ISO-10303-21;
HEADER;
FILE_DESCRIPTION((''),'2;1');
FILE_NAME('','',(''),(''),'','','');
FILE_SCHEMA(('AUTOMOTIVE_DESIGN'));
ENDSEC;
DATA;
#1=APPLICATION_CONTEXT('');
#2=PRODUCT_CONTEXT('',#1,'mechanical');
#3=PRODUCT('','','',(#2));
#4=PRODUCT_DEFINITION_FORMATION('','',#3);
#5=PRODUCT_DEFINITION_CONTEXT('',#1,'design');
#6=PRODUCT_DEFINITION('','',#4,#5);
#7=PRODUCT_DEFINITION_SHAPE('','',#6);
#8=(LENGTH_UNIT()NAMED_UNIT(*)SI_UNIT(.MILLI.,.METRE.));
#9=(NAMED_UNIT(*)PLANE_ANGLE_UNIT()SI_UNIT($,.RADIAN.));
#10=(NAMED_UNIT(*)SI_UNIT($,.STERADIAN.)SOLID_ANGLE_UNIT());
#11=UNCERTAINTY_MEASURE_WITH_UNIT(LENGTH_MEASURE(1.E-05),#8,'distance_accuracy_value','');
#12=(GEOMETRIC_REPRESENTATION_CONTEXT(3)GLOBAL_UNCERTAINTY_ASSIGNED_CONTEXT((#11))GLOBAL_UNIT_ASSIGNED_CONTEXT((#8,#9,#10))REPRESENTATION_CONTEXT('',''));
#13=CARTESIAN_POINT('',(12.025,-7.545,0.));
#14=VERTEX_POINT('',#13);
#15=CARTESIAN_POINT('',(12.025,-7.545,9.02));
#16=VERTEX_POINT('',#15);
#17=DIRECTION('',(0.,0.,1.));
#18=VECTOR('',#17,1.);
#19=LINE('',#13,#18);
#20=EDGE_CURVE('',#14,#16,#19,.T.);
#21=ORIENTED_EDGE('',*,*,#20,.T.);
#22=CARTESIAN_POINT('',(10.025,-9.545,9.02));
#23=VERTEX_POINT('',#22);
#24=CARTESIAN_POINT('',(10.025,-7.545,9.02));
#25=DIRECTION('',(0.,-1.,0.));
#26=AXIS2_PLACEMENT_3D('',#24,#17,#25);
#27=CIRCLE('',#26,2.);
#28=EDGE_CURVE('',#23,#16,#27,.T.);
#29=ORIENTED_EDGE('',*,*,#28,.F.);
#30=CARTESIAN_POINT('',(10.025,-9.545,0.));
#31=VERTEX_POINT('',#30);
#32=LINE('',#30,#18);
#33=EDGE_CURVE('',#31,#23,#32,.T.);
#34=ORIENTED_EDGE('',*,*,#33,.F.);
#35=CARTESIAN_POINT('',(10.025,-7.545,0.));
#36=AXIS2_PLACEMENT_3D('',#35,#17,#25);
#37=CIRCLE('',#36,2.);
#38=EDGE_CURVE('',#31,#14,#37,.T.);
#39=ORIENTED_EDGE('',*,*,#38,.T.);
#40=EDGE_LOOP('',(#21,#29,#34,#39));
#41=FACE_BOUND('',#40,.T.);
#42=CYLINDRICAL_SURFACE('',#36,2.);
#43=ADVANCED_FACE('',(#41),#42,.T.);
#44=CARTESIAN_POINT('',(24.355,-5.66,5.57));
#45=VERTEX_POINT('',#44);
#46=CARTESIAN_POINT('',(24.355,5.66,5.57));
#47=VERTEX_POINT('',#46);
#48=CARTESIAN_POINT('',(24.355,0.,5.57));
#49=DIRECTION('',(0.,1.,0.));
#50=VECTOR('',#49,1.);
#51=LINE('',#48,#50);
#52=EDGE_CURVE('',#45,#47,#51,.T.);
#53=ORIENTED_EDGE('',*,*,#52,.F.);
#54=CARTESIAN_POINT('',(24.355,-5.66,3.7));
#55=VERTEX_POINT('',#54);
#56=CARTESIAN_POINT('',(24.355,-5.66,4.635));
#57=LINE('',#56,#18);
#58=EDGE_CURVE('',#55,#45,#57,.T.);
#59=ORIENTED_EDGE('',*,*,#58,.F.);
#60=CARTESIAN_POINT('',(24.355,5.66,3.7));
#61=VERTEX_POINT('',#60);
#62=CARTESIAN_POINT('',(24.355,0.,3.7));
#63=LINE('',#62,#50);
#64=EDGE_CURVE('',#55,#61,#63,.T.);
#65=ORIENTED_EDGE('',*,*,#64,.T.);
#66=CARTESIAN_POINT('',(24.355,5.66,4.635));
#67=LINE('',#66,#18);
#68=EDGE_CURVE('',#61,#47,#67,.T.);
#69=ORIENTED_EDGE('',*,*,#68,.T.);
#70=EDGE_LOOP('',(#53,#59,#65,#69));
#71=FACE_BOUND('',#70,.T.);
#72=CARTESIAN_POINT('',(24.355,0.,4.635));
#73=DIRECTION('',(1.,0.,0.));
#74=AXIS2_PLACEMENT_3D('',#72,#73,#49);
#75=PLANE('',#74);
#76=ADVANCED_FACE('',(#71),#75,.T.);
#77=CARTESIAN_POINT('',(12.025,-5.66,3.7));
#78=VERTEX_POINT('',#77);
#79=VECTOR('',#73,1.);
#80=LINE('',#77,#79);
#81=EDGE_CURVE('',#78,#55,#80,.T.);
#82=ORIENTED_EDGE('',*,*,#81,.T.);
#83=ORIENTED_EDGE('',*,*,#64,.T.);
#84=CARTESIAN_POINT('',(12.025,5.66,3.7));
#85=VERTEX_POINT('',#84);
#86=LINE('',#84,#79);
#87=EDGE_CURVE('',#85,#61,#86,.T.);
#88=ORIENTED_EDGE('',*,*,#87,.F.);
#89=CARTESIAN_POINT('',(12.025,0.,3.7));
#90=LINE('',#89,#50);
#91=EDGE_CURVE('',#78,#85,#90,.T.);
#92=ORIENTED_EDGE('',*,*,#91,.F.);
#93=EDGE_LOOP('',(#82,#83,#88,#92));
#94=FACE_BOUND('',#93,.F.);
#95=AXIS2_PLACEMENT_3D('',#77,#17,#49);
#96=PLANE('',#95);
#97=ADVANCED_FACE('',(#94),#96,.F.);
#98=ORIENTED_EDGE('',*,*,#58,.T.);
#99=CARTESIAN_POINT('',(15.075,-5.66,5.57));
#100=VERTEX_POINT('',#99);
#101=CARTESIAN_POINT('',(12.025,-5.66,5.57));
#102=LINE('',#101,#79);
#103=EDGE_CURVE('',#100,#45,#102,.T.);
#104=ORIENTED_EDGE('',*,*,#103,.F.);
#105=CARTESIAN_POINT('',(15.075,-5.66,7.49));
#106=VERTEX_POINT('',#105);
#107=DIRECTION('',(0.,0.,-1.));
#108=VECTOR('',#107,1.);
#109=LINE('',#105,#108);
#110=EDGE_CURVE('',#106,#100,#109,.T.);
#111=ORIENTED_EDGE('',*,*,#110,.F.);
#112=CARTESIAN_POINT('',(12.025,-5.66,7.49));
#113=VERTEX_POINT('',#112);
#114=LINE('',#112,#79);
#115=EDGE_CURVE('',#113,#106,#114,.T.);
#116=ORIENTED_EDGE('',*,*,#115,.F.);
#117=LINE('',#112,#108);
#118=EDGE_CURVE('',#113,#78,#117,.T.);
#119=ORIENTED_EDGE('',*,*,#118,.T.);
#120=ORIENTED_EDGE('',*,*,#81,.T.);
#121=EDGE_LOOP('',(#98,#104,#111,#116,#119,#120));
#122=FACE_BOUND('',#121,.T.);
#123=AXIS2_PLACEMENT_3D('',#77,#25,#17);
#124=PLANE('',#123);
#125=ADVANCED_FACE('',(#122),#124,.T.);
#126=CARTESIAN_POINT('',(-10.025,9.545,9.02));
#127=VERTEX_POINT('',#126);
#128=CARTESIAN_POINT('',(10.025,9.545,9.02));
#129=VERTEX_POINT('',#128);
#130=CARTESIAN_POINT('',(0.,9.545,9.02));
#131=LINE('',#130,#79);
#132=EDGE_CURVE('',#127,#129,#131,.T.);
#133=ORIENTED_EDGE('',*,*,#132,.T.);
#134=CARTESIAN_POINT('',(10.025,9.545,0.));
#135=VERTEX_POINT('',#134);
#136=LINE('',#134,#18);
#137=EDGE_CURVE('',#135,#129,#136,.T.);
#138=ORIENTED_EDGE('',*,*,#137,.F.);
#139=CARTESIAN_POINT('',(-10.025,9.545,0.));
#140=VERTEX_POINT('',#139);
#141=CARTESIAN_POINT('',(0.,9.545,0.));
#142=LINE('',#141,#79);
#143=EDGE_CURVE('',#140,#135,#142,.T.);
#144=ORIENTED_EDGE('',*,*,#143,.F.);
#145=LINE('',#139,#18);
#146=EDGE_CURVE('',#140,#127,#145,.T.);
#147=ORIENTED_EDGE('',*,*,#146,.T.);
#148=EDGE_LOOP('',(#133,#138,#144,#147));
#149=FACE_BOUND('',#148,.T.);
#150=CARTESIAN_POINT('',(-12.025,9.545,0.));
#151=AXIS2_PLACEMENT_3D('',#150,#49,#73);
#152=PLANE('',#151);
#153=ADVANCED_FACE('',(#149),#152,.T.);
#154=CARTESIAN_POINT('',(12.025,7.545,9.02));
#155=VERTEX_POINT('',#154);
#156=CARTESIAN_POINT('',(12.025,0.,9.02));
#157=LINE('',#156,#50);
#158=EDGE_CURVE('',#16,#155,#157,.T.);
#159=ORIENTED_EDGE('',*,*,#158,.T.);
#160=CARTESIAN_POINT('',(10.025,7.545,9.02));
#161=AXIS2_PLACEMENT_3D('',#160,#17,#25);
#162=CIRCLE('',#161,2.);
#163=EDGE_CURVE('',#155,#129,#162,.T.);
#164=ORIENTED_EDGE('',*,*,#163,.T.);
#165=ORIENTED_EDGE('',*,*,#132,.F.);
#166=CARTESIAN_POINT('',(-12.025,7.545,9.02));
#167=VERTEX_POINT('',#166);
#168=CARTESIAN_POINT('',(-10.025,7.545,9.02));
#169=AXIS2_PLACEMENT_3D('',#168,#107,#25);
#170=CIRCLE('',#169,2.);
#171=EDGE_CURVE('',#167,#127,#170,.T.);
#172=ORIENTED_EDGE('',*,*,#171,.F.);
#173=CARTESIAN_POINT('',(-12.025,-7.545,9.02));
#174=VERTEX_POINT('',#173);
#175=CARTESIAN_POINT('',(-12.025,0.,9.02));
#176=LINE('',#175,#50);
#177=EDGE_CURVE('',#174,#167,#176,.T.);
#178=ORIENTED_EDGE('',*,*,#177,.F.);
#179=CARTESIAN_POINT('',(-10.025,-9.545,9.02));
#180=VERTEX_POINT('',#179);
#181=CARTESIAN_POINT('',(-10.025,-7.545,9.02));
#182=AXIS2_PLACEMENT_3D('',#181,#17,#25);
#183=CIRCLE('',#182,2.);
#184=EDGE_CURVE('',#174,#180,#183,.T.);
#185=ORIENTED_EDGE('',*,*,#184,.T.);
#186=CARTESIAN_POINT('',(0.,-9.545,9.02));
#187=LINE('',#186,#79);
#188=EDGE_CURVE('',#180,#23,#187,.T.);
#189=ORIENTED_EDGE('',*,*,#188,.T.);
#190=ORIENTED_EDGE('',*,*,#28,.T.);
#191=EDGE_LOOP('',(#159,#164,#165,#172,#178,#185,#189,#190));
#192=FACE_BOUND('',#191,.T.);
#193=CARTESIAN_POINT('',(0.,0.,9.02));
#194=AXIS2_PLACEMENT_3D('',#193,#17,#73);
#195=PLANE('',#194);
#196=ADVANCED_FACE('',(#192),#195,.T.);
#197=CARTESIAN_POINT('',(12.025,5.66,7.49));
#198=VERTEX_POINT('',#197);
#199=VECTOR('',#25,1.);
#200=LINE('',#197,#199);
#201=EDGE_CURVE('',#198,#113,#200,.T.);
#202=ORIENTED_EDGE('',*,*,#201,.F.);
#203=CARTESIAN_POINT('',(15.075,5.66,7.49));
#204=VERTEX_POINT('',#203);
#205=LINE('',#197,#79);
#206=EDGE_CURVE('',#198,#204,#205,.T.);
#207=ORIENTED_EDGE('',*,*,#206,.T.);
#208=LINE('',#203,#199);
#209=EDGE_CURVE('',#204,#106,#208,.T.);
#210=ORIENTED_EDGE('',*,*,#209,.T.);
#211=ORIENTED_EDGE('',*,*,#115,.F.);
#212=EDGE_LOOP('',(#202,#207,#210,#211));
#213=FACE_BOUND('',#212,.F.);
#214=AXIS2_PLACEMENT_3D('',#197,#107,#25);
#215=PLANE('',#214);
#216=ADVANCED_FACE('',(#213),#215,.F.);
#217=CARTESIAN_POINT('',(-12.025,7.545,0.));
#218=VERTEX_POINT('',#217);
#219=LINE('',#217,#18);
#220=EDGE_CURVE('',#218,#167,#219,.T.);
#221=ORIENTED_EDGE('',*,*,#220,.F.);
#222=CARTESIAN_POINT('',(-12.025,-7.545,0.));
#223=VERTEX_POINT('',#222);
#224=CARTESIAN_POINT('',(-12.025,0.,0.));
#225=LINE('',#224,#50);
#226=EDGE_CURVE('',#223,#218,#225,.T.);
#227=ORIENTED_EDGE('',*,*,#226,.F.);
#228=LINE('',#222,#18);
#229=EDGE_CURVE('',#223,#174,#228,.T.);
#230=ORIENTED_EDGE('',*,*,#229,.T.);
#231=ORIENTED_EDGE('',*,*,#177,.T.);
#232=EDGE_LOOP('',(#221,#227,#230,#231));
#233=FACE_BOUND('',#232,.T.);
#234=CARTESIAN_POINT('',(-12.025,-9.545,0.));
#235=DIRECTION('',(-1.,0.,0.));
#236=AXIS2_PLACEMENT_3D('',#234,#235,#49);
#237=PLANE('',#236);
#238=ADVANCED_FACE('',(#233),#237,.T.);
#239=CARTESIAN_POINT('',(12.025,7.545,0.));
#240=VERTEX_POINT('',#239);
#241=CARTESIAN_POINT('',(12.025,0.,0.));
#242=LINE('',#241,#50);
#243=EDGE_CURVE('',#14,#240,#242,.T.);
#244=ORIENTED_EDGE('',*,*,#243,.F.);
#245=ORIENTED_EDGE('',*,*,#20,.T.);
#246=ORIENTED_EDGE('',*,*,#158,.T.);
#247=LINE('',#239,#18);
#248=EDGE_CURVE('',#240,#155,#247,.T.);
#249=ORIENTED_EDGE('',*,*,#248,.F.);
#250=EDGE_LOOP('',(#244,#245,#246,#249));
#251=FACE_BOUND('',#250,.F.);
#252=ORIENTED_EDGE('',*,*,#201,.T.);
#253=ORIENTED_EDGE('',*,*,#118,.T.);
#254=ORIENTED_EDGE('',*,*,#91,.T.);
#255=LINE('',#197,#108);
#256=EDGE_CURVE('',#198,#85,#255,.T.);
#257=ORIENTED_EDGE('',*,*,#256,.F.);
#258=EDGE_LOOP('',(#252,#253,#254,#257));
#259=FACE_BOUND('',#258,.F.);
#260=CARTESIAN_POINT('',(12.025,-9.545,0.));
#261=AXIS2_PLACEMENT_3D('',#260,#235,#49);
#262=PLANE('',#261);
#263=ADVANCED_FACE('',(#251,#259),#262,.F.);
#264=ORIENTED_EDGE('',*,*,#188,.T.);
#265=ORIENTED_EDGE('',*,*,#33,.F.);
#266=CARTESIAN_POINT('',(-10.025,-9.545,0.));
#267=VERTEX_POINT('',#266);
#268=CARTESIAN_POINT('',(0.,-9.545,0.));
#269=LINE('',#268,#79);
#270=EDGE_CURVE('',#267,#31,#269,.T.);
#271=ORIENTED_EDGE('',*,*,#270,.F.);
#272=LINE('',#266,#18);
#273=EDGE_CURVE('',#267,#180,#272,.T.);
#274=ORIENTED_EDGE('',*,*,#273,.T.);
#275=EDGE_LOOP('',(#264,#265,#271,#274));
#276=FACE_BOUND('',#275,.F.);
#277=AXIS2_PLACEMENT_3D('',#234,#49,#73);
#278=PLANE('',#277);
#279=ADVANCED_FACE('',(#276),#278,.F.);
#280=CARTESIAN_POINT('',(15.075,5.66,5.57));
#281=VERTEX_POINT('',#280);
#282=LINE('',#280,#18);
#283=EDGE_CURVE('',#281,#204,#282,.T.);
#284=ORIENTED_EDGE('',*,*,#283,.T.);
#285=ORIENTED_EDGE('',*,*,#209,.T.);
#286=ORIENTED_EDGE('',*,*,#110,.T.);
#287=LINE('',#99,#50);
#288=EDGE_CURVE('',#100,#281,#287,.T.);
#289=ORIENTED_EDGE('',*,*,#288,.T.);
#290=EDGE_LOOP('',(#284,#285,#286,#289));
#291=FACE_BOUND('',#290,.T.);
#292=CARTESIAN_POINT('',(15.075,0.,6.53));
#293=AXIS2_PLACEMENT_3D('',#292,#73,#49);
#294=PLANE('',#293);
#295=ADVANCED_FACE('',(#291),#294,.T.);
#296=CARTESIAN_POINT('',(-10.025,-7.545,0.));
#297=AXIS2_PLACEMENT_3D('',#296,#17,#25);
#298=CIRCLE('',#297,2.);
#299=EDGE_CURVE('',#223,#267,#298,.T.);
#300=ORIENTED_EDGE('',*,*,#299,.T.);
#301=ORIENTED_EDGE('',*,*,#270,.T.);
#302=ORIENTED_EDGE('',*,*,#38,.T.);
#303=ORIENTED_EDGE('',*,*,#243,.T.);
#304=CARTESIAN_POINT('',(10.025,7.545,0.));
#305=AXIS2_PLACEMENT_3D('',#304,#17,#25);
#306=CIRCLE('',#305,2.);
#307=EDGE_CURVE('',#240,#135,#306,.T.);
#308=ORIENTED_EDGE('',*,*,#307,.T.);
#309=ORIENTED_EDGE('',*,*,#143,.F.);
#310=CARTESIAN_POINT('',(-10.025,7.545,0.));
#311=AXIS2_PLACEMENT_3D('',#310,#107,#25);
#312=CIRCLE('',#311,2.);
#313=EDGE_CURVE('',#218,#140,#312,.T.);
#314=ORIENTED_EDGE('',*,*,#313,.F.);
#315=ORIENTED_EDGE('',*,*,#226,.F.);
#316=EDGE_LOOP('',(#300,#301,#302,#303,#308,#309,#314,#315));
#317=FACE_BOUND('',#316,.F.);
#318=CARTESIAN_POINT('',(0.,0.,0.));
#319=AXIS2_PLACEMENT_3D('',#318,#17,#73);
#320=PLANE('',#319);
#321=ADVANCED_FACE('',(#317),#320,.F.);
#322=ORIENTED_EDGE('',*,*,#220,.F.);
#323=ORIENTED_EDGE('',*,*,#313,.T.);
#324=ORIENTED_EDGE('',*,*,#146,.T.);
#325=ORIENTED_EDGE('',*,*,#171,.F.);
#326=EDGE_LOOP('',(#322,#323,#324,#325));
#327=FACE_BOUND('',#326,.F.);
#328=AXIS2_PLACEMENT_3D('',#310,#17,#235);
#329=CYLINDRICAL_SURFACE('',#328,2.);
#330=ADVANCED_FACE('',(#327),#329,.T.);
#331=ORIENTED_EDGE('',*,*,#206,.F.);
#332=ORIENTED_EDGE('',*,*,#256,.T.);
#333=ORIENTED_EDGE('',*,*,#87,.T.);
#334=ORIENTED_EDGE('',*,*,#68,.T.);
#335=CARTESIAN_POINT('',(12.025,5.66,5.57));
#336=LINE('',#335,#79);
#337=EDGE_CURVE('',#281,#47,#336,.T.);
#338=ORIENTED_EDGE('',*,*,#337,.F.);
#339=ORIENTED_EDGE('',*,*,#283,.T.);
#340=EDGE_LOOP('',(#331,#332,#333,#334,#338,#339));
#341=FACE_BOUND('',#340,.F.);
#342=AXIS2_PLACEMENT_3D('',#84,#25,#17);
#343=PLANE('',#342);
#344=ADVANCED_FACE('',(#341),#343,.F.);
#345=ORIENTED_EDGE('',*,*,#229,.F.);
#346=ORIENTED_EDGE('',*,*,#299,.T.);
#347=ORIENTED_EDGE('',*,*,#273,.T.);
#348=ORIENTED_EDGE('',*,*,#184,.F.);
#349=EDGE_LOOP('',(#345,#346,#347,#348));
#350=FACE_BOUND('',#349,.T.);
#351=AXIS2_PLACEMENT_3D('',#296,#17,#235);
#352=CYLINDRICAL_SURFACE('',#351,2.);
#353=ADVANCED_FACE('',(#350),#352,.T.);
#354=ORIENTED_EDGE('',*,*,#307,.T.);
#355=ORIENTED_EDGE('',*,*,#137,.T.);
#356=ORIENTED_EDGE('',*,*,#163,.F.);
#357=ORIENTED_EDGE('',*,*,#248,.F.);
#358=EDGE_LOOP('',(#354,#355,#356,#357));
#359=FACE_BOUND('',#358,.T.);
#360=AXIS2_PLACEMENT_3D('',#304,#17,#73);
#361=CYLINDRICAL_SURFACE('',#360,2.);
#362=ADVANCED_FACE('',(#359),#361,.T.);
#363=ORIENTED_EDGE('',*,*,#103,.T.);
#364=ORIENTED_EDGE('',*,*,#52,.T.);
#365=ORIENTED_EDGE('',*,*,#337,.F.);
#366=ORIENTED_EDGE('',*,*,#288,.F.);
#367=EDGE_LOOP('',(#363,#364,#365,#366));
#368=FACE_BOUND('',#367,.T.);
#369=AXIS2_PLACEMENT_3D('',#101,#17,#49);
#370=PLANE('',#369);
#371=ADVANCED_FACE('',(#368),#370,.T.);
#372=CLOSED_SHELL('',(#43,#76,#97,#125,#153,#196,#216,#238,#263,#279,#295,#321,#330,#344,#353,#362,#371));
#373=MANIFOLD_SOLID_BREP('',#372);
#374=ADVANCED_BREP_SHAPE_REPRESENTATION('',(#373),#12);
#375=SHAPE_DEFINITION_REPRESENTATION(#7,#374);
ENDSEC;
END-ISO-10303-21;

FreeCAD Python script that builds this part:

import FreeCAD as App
import Part
import Sketcher
from FreeCAD import Vector
Q = App.Units.Quantity


def edges_at(feature, points):
    """Names of the edges that pass closest to the given points."""
    edges = feature.Shape.Edges
    near = lambda p: min(range(len(edges)), key=lambda i: edges[i].distToShape(Part.Vertex(*p))[0])
    return sorted({f"Edge{near(p) + 1}" for p in points})

doc = App.newDocument("Part")
params = doc.addObject("Spreadsheet::Sheet", "Params")
for row, (alias, value) in enumerate([
    ("sketch1_width", "24.05 mm"),
    ("sketch1_height", "19.09 mm"),
    ("pad1_length", "9.02 mm"),
    ("fillet_radius", "2 mm"),
    ("sketch2_width", "11.32 mm"),
    ("sketch2_height", "1.92 mm"),
    ("pad2_length", "3.05 mm"),
    ("sketch3_width", "11.32 mm"),
    ("sketch3_height", "1.87 mm"),
    ("pad3_length", "12.33 mm"),
], start=1):
    params.set(f"A{row}", alias)
    params.set(f"B{row}", "=" + value)
    params.setAlias(f"B{row}", alias)

body = doc.addObject("PartDesign::Body", "Body")

# Sketch on XY plane
sketch1 = body.newObject("Sketcher::SketchObject", "Sketch")
sketch1.AttachmentSupport = (doc.getObject("XY_Plane"), [""])
sketch1.MapMode = "FlatFace"
sketch1.addGeometry(Part.LineSegment(Vector(-12, 10, 0), Vector(-12, -10, 0)), False)
sketch1.addGeometry(Part.LineSegment(Vector(-12, -10, 0), Vector(12, -10, 0)), False)
sketch1.addGeometry(Part.LineSegment(Vector(12, -10, 0), Vector(12, 10, 0)), False)
sketch1.addGeometry(Part.LineSegment(Vector(12, 10, 0), Vector(-12, 10, 0)), False)
sketch1.addConstraint(Sketcher.Constraint("Coincident", 0, 2, 1, 1))
sketch1.addConstraint(Sketcher.Constraint("Coincident", 1, 2, 2, 1))
sketch1.addConstraint(Sketcher.Constraint("Coincident", 2, 2, 3, 1))
sketch1.addConstraint(Sketcher.Constraint("Coincident", 3, 2, 0, 1))
sketch1.addConstraint(Sketcher.Constraint("Vertical", 0))
sketch1.addConstraint(Sketcher.Constraint("Horizontal", 1))
sketch1.addConstraint(Sketcher.Constraint("Vertical", 2))
sketch1.addConstraint(Sketcher.Constraint("Horizontal", 3))
sketch1.addConstraint(Sketcher.Constraint("Symmetric", 0, 2, 2, 2, -1, 1))
sketch1.addConstraint(Sketcher.Constraint("DistanceX", 1, 1, 1, 2, Q("24.05 mm")))
sketch1.addConstraint(Sketcher.Constraint("DistanceY", 0, 2, 0, 1, Q("19.09 mm")))
sketch1.setExpression("Constraints[9]", "Params.sketch1_width")
sketch1.setExpression("Constraints[10]", "Params.sketch1_height")
pad1 = body.newObject("PartDesign::Pad", "Pad")
pad1.Profile = sketch1
pad1.setExpression("Length", "Params.pad1_length")
doc.recompute()

fillet = body.newObject("PartDesign::Fillet", "Fillet")
fillet.Base = (pad1, edges_at(pad1, [
    (12.025, -9.545, 4.51),
    (12.025, 9.545, 4.51),
    (-12.025, 9.545, 4.51),
    (-12.025, -9.545, 4.51),
]))
fillet.setExpression("Radius", "Params.fillet_radius")

# Sketch on YZ plane
sketch2 = body.newObject("Sketcher::SketchObject", "Sketch001")
sketch2.AttachmentSupport = (doc.getObject("YZ_Plane"), [""])
sketch2.MapMode = "FlatFace"
sketch2.AttachmentOffset = App.Placement(Vector(0, 0, 12.025), App.Rotation())
sketch2.addGeometry(Part.LineSegment(Vector(-5.7, 7.5, 0), Vector(-5.7, 5.6, 0)), False)
sketch2.addGeometry(Part.LineSegment(Vector(-5.7, 5.6, 0), Vector(5.7, 5.6, 0)), False)
sketch2.addGeometry(Part.LineSegment(Vector(5.7, 5.6, 0), Vector(5.7, 7.5, 0)), False)
sketch2.addGeometry(Part.LineSegment(Vector(5.7, 7.5, 0), Vector(-5.7, 7.5, 0)), False)
sketch2.addConstraint(Sketcher.Constraint("Coincident", 0, 2, 1, 1))
sketch2.addConstraint(Sketcher.Constraint("Coincident", 1, 2, 2, 1))
sketch2.addConstraint(Sketcher.Constraint("Coincident", 2, 2, 3, 1))
sketch2.addConstraint(Sketcher.Constraint("Coincident", 3, 2, 0, 1))
sketch2.addConstraint(Sketcher.Constraint("Vertical", 0))
sketch2.addConstraint(Sketcher.Constraint("Horizontal", 1))
sketch2.addConstraint(Sketcher.Constraint("Vertical", 2))
sketch2.addConstraint(Sketcher.Constraint("Horizontal", 3))
sketch2.addConstraint(Sketcher.Constraint("DistanceX", 1, 1, 1, 2, Q("11.32 mm")))
sketch2.addConstraint(Sketcher.Constraint("DistanceY", 0, 2, 0, 1, Q("1.92 mm")))
sketch2.addConstraint(Sketcher.Constraint("DistanceX", 0, 2, -1, 1, Q("5.66 mm")))
sketch2.addConstraint(Sketcher.Constraint("DistanceY", -1, 1, 0, 2, Q("5.57 mm")))
sketch2.setExpression("Constraints[8]", "Params.sketch2_width")
sketch2.setExpression("Constraints[9]", "Params.sketch2_height")
pad2 = body.newObject("PartDesign::Pad", "Pad001")
pad2.Profile = sketch2
pad2.setExpression("Length", "Params.pad2_length")

# Sketch on YZ plane
sketch3 = body.newObject("Sketcher::SketchObject", "Sketch002")
sketch3.AttachmentSupport = (doc.getObject("YZ_Plane"), [""])
sketch3.MapMode = "FlatFace"
sketch3.AttachmentOffset = App.Placement(Vector(0, 0, 12.025), App.Rotation())
sketch3.addGeometry(Part.LineSegment(Vector(-5.7, 5.6, 0), Vector(-5.7, 3.7, 0)), False)
sketch3.addGeometry(Part.LineSegment(Vector(-5.7, 3.7, 0), Vector(5.7, 3.7, 0)), False)
sketch3.addGeometry(Part.LineSegment(Vector(5.7, 3.7, 0), Vector(5.7, 5.6, 0)), False)
sketch3.addGeometry(Part.LineSegment(Vector(5.7, 5.6, 0), Vector(-5.7, 5.6, 0)), False)
sketch3.addConstraint(Sketcher.Constraint("Coincident", 0, 2, 1, 1))
sketch3.addConstraint(Sketcher.Constraint("Coincident", 1, 2, 2, 1))
sketch3.addConstraint(Sketcher.Constraint("Coincident", 2, 2, 3, 1))
sketch3.addConstraint(Sketcher.Constraint("Coincident", 3, 2, 0, 1))
sketch3.addConstraint(Sketcher.Constraint("Vertical", 0))
sketch3.addConstraint(Sketcher.Constraint("Horizontal", 1))
sketch3.addConstraint(Sketcher.Constraint("Vertical", 2))
sketch3.addConstraint(Sketcher.Constraint("Horizontal", 3))
sketch3.addConstraint(Sketcher.Constraint("DistanceX", 1, 1, 1, 2, Q("11.32 mm")))
sketch3.addConstraint(Sketcher.Constraint("DistanceY", 0, 2, 0, 1, Q("1.87 mm")))
sketch3.addConstraint(Sketcher.Constraint("DistanceY", -1, 1, 0, 2, Q("3.7 mm")))
sketch3.addConstraint(Sketcher.Constraint("DistanceX", 0, 2, -1, 1, Q("5.66 mm")))
sketch3.setExpression("Constraints[8]", "Params.sketch3_width")
sketch3.setExpression("Constraints[9]", "Params.sketch3_height")
pad3 = body.newObject("PartDesign::Pad", "Pad002")
pad3.Profile = sketch3
pad3.setExpression("Length", "Params.pad3_length")

doc.recompute()
